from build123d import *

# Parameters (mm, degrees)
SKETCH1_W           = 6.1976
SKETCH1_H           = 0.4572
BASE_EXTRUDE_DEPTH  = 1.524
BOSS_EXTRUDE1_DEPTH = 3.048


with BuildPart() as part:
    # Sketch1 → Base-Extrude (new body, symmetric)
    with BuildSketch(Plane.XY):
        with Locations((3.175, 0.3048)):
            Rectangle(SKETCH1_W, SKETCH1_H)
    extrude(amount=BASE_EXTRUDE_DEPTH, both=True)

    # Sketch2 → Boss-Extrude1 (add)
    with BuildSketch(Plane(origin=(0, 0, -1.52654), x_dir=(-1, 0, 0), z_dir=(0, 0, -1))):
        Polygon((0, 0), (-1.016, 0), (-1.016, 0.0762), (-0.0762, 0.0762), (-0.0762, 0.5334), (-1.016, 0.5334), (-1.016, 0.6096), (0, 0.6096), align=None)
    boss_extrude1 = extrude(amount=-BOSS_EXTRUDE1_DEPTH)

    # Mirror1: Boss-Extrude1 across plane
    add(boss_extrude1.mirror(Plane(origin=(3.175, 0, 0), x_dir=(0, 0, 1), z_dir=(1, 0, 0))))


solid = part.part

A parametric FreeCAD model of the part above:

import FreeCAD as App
import Part
import Sketcher
from FreeCAD import Vector
Q = App.Units.Quantity

doc = App.newDocument("Part")
params = doc.addObject("Spreadsheet::Sheet", "Params")
for row, (alias, value) in enumerate([
    ("sketch1_width", "0.244 in"),
    ("sketch1_height", "0.018 in"),
    ("pad1_length", "0.12 in"),
    ("sketch2_width", "0.04 in"),
    ("sketch2_width2", "0.037 in"),
    ("sketch2_height", "0.024 in"),
    ("sketch2_height2", "0.003 in"),
    ("pad2_length", "0.12 in"),
], start=1):
    params.set(f"A{row}", alias)
    params.set(f"B{row}", "=" + value)
    params.setAlias(f"B{row}", alias)

body = doc.addObject("PartDesign::Body", "Body")

# Sketch on XY plane
sketch1 = doc.addObject("Sketcher::SketchObject", "Sketch")
body.addObject(sketch1)
sketch1.AttachmentSupport = (doc.XY_Plane, [""])
sketch1.MapMode = "FlatFace"
sketch1.addGeometry([
    Part.LineSegment(Vector(0.0762, 0.5334, 0), Vector(0.0762, 0.0762, 0)),
    Part.LineSegment(Vector(0.0762, 0.0762, 0), Vector(6.2738, 0.0762, 0)),
    Part.LineSegment(Vector(6.2738, 0.0762, 0), Vector(6.2738, 0.5334, 0)),
    Part.LineSegment(Vector(6.2738, 0.5334, 0), Vector(0.0762, 0.5334, 0)),
], False)
sketch1.addConstraint([
    Sketcher.Constraint("Coincident", 0, 2, 1, 1),
    Sketcher.Constraint("Coincident", 1, 2, 2, 1),
    Sketcher.Constraint("Coincident", 2, 2, 3, 1),
    Sketcher.Constraint("Coincident", 3, 2, 0, 1),
    Sketcher.Constraint("Vertical", 0),
    Sketcher.Constraint("Horizontal", 1),
    Sketcher.Constraint("Vertical", 2),
    Sketcher.Constraint("Horizontal", 3),
    Sketcher.Constraint("DistanceX", 1, 1, 1, 2, Q("0.244 in")),
    Sketcher.Constraint("DistanceY", 0, 2, 0, 1, Q("0.018 in")),
    Sketcher.Constraint("DistanceX", -1, 1, 0, 2, Q("0.003 in")),
    Sketcher.Constraint("DistanceY", -1, 1, 0, 2, Q("0.003 in")),
])
sketch1.setExpression("Constraints[8]", "Params.sketch1_width")
sketch1.setExpression("Constraints[9]", "Params.sketch1_height")
pad1 = doc.addObject("PartDesign::Pad", "Pad")
body.addObject(pad1)
pad1.Profile = sketch1
pad1.setExpression("Length", "Params.pad1_length")
pad1.Midplane = True

# Sketch on XY plane
sketch2 = doc.addObject("Sketcher::SketchObject", "Sketch001")
body.addObject(sketch2)
sketch2.AttachmentSupport = (doc.XY_Plane, [""])
sketch2.MapMode = "FlatFace"
sketch2.AttachmentOffset = App.Placement(Vector(0, 0, -0.0601 * 25.4), App.Rotation())
sketch2.addGeometry([
    Part.LineSegment(Vector(1.016, 0, 0), Vector(0, 0, 0)),  # 0
    Part.LineSegment(Vector(0, 0, 0), Vector(0, 0.6096, 0)),  # 1
    Part.LineSegment(Vector(0, 0.6096, 0), Vector(1.016, 0.6096, 0)),  # 2
    Part.LineSegment(Vector(1.016, 0.6096, 0), Vector(1.016, 0.5334, 0)),  # 3
    Part.LineSegment(Vector(1.016, 0.5334, 0), Vector(0.0762, 0.5334, 0)),  # 4
    Part.LineSegment(Vector(0.0762, 0.5334, 0), Vector(0.0762, 0.0762, 0)),  # 5
    Part.LineSegment(Vector(0.0762, 0.0762, 0), Vector(1.016, 0.0762, 0)),  # 6
    Part.LineSegment(Vector(1.016, 0.0762, 0), Vector(1.016, 0, 0)),  # 7
], False)
sketch2.addConstraint([
    Sketcher.Constraint("Coincident", 0, 2, 1, 1),
    Sketcher.Constraint("Coincident", 1, 2, 2, 1),
    Sketcher.Constraint("Coincident", 2, 2, 3, 1),
    Sketcher.Constraint("Coincident", 3, 2, 4, 1),
    Sketcher.Constraint("Coincident", 4, 2, 5, 1),
    Sketcher.Constraint("Coincident", 5, 2, 6, 1),
    Sketcher.Constraint("Coincident", 6, 2, 7, 1),
    Sketcher.Constraint("Coincident", 7, 2, 0, 1),
    Sketcher.Constraint("Horizontal", 0),
    Sketcher.Constraint("Vertical", 1),
    Sketcher.Constraint("Horizontal", 2),
    Sketcher.Constraint("Vertical", 3),
    Sketcher.Constraint("Horizontal", 4),
    Sketcher.Constraint("Vertical", 5),
    Sketcher.Constraint("Horizontal", 6),
    Sketcher.Constraint("Vertical", 7),
    Sketcher.Constraint("Coincident", 0, 2, -1, 1),
    Sketcher.Constraint("Vertical", 3, 2, 6, 2),
    Sketcher.Constraint("Equal", 3, 7),
    Sketcher.Constraint("DistanceX", 0, 2, 0, 1, Q("0.04 in")),
    Sketcher.Constraint("DistanceX", 4, 2, 4, 1, Q("0.037 in")),
    Sketcher.Constraint("DistanceY", 1, 1, 1, 2, Q("0.024 in")),
    Sketcher.Constraint("DistanceY", 3, 2, 3, 1, Q("0.003 in")),
])
sketch2.setExpression("Constraints[19]", "Params.sketch2_width")
sketch2.setExpression("Constraints[20]", "Params.sketch2_width2")
sketch2.setExpression("Constraints[21]", "Params.sketch2_height")
sketch2.setExpression("Constraints[22]", "Params.sketch2_height2")
pad2 = doc.addObject("PartDesign::Pad", "Pad001")
body.addObject(pad2)
pad2.Profile = sketch2
pad2.setExpression("Length", "Params.pad2_length")
doc.recompute()

datumplane = doc.addObject("PartDesign::Plane", "DatumPlane")
body.addObject(datumplane)
datumplane.AttachmentSupport = (doc.YZ_Plane, [""])
datumplane.MapMode = "FlatFace"
datumplane.AttachmentOffset = App.Placement(Vector(0, 0, 0.125 * 25.4), App.Rotation())
mirrored = doc.addObject("PartDesign::Mirrored", "Mirrored")
body.addObject(mirrored)
mirrored.Originals = [pad2]
mirrored.MirrorPlane = (datumplane, [""])
body.Tip = mirrored

doc.recompute()
